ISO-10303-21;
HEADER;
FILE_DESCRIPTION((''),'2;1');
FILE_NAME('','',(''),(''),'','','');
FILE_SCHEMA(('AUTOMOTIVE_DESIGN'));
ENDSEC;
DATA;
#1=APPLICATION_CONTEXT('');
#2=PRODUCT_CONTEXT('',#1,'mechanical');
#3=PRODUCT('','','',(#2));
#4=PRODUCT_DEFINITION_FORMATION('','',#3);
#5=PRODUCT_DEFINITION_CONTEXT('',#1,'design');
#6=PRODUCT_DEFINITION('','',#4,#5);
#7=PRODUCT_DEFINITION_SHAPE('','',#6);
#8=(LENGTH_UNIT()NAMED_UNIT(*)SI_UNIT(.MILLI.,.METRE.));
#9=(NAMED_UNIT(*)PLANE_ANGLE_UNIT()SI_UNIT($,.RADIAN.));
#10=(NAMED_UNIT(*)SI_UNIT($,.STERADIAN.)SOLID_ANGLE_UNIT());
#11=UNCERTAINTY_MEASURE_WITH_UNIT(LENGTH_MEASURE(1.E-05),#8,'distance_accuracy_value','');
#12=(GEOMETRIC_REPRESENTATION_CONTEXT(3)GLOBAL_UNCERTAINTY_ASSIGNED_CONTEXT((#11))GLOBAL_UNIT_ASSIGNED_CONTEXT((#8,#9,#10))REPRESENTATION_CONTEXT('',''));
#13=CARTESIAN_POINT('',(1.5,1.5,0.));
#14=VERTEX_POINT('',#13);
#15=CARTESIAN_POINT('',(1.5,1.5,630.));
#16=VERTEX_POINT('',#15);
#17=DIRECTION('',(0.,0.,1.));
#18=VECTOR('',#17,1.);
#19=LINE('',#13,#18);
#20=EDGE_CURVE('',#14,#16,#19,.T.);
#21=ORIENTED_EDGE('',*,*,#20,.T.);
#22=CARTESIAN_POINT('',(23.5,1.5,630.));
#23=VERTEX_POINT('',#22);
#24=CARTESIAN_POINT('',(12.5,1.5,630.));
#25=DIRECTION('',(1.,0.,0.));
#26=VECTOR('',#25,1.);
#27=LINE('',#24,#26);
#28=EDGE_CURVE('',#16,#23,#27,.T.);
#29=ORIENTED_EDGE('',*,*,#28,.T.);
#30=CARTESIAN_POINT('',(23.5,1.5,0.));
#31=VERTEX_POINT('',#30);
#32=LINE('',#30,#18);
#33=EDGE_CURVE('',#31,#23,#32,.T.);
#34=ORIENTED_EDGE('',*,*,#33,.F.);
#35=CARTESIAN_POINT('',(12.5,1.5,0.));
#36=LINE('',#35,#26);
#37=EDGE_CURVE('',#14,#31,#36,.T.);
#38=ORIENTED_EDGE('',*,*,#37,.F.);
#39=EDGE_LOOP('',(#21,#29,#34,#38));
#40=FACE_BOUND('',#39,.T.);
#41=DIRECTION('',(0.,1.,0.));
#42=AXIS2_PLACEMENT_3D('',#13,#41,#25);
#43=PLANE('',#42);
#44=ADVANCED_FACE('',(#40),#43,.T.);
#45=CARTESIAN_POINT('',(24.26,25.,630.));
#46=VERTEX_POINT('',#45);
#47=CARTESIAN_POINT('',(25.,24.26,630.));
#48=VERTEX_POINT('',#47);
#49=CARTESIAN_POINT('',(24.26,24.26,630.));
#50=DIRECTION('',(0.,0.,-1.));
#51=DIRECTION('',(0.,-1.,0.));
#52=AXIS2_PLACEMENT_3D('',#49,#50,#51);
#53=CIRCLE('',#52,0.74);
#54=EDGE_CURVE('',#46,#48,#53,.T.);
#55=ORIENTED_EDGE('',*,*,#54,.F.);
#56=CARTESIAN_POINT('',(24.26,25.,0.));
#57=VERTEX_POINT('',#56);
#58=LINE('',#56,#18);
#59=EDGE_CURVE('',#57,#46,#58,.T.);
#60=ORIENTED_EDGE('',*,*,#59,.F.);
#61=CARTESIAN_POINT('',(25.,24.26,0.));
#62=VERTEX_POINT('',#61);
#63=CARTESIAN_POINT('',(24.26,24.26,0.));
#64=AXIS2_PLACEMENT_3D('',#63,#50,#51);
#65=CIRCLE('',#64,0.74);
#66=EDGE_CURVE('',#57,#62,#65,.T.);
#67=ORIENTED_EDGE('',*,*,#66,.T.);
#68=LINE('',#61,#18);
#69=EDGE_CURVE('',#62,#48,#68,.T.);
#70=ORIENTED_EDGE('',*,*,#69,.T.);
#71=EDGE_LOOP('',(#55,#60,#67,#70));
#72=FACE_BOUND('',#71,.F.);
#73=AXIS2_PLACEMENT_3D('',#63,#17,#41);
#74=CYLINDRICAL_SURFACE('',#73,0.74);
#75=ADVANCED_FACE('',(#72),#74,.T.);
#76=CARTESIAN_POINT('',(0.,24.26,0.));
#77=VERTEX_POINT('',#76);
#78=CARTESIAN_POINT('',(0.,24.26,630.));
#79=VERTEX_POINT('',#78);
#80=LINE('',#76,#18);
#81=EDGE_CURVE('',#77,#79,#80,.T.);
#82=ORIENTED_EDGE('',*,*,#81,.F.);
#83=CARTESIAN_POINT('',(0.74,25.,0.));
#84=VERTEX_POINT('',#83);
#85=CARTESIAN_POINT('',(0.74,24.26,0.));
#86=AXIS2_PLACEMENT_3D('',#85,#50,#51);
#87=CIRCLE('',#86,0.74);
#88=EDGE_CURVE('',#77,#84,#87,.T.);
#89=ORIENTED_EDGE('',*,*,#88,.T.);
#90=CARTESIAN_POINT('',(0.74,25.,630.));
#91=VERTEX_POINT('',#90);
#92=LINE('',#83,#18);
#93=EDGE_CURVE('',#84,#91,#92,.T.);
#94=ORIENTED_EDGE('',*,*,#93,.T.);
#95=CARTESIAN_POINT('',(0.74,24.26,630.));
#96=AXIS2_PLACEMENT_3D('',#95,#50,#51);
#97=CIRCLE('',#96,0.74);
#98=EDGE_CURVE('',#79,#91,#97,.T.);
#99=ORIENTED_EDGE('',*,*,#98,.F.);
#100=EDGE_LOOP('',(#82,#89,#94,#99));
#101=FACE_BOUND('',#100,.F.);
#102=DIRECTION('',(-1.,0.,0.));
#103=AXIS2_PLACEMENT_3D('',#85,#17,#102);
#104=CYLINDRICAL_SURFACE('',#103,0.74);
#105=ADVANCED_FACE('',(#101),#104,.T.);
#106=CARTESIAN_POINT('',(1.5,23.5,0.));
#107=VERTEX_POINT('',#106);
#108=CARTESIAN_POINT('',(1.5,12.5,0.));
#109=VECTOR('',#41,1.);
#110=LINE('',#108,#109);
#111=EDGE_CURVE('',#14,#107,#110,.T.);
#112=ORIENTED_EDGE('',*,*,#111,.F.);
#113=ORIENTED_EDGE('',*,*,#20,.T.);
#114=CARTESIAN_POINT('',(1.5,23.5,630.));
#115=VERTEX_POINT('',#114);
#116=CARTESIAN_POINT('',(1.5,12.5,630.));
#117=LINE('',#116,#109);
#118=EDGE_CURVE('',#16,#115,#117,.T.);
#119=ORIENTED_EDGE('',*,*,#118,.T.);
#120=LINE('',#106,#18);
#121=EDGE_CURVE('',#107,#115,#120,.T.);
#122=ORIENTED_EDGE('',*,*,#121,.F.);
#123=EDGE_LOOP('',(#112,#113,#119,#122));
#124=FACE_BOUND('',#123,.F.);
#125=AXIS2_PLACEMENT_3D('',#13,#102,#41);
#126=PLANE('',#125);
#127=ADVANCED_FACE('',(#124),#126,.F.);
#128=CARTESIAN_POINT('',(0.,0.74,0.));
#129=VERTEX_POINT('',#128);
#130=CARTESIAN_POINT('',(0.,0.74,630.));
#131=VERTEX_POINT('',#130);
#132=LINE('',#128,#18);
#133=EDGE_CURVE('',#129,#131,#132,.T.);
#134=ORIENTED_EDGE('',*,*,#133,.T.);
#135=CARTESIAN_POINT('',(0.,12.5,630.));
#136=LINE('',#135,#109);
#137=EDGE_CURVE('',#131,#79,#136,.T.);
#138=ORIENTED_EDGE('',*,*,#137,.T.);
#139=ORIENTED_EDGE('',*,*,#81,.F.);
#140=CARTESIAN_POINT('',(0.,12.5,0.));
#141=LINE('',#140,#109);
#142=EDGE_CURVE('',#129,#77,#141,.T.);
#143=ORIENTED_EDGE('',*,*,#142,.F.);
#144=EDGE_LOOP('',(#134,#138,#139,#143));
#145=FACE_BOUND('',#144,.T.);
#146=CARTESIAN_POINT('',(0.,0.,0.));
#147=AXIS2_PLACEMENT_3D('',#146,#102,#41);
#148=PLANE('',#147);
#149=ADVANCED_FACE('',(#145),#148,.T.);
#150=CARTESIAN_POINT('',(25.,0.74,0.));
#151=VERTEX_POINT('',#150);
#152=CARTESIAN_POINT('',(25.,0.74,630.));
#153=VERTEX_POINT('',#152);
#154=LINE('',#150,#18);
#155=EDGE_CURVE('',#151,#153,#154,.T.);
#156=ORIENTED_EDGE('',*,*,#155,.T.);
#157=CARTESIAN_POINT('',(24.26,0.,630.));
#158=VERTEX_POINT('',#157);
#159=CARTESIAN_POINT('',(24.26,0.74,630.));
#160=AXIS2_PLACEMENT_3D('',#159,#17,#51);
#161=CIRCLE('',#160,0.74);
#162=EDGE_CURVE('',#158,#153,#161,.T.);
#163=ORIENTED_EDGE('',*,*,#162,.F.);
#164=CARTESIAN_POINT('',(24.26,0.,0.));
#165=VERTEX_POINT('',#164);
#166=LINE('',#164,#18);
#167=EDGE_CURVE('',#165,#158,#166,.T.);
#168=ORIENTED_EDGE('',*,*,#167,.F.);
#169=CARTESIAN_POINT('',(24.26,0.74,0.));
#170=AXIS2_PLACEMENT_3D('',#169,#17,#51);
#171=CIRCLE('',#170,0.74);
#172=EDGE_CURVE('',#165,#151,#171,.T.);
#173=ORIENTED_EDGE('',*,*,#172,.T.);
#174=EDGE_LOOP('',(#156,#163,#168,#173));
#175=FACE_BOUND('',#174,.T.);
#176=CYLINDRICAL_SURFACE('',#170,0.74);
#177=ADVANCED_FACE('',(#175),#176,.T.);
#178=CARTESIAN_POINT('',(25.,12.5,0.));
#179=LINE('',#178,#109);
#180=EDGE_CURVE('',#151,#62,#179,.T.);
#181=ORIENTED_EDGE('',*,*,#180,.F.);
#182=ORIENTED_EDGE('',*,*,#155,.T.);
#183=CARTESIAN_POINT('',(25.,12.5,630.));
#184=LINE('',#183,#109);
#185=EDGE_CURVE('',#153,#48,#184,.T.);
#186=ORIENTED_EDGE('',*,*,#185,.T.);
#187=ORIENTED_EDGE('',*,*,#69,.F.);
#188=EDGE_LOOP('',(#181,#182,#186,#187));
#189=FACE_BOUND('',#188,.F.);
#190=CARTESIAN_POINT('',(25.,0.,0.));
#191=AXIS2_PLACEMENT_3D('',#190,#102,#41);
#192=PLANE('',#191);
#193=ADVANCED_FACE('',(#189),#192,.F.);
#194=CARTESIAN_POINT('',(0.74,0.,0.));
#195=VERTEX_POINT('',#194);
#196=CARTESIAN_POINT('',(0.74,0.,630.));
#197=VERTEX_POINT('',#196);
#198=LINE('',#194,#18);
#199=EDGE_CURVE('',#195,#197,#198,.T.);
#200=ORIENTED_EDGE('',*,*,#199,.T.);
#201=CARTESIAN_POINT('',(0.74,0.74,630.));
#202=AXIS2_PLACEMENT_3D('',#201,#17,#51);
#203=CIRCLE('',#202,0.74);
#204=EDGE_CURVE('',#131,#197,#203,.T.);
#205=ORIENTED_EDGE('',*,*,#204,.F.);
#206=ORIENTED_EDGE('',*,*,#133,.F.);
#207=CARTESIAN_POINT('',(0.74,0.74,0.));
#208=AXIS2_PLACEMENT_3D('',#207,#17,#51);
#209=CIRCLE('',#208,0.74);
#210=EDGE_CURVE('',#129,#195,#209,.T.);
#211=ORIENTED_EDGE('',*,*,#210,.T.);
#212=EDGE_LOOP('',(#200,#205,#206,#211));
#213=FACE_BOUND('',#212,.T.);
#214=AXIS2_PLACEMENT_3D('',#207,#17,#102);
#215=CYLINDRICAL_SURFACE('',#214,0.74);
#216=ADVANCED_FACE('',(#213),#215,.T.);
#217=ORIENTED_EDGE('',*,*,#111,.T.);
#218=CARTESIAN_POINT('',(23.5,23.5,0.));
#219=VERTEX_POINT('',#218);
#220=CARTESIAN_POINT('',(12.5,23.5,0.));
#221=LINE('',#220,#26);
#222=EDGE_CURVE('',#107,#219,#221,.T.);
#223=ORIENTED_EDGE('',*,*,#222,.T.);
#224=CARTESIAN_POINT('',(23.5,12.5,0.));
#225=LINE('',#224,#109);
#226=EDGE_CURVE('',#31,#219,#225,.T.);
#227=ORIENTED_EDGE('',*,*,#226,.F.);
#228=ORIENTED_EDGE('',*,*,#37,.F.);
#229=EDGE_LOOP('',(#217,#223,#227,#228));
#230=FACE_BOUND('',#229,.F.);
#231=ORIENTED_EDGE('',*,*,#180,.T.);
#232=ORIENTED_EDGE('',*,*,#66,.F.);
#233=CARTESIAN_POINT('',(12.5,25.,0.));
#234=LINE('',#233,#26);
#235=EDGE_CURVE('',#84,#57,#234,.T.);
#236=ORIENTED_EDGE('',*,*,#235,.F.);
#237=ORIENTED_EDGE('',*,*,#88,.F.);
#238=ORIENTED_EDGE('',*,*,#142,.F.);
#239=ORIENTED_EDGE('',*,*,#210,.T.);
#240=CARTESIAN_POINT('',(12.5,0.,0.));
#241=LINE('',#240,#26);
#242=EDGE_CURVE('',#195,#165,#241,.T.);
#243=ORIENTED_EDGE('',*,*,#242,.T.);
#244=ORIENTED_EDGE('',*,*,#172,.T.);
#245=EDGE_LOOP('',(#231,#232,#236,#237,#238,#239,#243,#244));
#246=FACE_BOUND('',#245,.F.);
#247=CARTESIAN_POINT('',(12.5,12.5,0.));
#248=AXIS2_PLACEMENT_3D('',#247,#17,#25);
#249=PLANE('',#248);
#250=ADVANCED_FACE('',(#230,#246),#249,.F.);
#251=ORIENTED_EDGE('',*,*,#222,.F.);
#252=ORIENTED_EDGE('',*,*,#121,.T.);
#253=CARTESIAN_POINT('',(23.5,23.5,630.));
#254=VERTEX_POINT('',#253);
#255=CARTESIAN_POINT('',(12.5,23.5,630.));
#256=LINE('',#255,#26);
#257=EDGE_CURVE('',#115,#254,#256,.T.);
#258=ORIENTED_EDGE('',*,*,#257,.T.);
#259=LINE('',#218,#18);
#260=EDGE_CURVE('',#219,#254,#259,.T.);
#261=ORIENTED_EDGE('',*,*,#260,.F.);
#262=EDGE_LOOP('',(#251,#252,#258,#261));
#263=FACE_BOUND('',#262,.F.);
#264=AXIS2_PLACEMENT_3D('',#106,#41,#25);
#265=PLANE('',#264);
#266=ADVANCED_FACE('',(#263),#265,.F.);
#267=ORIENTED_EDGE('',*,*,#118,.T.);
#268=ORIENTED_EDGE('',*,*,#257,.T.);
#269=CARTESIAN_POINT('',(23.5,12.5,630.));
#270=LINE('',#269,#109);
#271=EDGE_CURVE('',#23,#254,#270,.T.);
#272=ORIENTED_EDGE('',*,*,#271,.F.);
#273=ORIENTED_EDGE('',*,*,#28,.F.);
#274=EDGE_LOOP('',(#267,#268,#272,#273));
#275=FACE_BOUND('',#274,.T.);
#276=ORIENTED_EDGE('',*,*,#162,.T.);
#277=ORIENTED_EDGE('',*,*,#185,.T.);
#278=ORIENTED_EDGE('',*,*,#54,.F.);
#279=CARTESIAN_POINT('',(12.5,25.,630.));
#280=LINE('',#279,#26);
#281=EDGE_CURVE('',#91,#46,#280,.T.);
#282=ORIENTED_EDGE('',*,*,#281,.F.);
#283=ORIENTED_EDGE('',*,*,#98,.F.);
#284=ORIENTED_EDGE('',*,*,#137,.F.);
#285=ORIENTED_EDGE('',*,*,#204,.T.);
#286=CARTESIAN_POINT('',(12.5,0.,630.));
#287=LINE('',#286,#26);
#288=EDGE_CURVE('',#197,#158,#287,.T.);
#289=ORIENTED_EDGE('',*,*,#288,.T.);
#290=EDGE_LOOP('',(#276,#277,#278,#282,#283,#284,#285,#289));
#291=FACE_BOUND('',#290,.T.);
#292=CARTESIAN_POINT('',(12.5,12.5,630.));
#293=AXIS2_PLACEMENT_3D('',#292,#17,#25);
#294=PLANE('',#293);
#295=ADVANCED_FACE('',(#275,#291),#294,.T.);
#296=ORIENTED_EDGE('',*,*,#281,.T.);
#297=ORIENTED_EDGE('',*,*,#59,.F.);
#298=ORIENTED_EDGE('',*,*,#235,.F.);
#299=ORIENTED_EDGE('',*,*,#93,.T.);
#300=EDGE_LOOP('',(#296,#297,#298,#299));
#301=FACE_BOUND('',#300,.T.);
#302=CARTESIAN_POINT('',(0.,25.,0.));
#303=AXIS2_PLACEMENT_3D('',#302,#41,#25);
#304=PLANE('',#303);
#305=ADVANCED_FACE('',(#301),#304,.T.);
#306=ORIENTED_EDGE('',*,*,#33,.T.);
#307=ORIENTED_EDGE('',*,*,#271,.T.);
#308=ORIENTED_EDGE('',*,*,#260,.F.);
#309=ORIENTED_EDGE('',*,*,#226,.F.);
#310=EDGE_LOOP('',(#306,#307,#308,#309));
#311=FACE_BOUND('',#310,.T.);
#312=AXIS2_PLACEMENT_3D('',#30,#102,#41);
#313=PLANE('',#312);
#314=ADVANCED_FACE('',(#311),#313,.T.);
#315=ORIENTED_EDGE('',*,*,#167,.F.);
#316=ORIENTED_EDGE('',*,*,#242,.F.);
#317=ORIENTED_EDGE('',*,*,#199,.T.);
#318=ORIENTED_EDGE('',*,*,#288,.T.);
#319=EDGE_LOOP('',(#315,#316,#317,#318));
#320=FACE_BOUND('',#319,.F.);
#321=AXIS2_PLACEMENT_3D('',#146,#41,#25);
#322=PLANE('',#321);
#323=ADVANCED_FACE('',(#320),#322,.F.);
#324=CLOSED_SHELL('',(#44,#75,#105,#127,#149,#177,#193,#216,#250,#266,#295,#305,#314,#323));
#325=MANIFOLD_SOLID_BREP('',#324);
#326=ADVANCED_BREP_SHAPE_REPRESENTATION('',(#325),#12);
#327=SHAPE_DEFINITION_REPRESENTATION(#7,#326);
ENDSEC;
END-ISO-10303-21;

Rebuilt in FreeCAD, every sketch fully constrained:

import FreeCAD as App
import Part
import Sketcher

V = App.Vector
Q = App.Units.Quantity


def edges_at(feature, points):
    """Names of the edges that pass closest to the given points."""
    edges = feature.Shape.Edges
    near = lambda p: min(range(len(edges)), key=lambda i: edges[i].distToShape(Part.Vertex(*p))[0])
    return sorted({f"Edge{near(p) + 1}" for p in points})

doc = App.newDocument("Part")
body = doc.addObject("PartDesign::Body", "Body")

# Sketch on XY plane
sketch1 = body.newObject("Sketcher::SketchObject", "Sketch")
sketch1.AttachmentSupport = (doc.getObject("XY_Plane"), [""])
sketch1.MapMode = "FlatFace"
sketch1.addGeometry(Part.LineSegment(V(0, 25, 0), V(0, 0, 0)), False)
sketch1.addGeometry(Part.LineSegment(V(0, 0, 0), V(25, 0, 0)), False)
sketch1.addGeometry(Part.LineSegment(V(25, 0, 0), V(25, 25, 0)), False)
sketch1.addGeometry(Part.LineSegment(V(25, 25, 0), V(0, 25, 0)), False)
sketch1.addGeometry(Part.LineSegment(V(24, 2, 0), V(2, 2, 0)), False)
sketch1.addGeometry(Part.LineSegment(V(2, 2, 0), V(2, 24, 0)), False)
sketch1.addGeometry(Part.LineSegment(V(2, 24, 0), V(24, 24, 0)), False)
sketch1.addGeometry(Part.LineSegment(V(24, 24, 0), V(24, 2, 0)), False)
sketch1.addConstraint(Sketcher.Constraint("Coincident", 0, 2, 1, 1))
sketch1.addConstraint(Sketcher.Constraint("Coincident", 1, 2, 2, 1))
sketch1.addConstraint(Sketcher.Constraint("Coincident", 2, 2, 3, 1))
sketch1.addConstraint(Sketcher.Constraint("Coincident", 3, 2, 0, 1))
sketch1.addConstraint(Sketcher.Constraint("Coincident", 4, 2, 5, 1))
sketch1.addConstraint(Sketcher.Constraint("Coincident", 5, 2, 6, 1))
sketch1.addConstraint(Sketcher.Constraint("Coincident", 6, 2, 7, 1))
sketch1.addConstraint(Sketcher.Constraint("Coincident", 7, 2, 4, 1))
sketch1.addConstraint(Sketcher.Constraint("Vertical", 0))
sketch1.addConstraint(Sketcher.Constraint("Horizontal", 1))
sketch1.addConstraint(Sketcher.Constraint("Vertical", 2))
sketch1.addConstraint(Sketcher.Constraint("Horizontal", 3))
sketch1.addConstraint(Sketcher.Constraint("Horizontal", 4))
sketch1.addConstraint(Sketcher.Constraint("Vertical", 5))
sketch1.addConstraint(Sketcher.Constraint("Horizontal", 6))
sketch1.addConstraint(Sketcher.Constraint("Vertical", 7))
sketch1.addConstraint(Sketcher.Constraint("Coincident", 0, 2, -1, 1))
sketch1.addConstraint(Sketcher.Constraint("Equal", 3, 0))
sketch1.addConstraint(Sketcher.Constraint("Equal", 6, 5))
sketch1.addConstraint(Sketcher.Constraint("DistanceX", 1, 1, 1, 2, Q("25 mm")))
sketch1.addConstraint(Sketcher.Constraint("DistanceX", 4, 2, 4, 1, Q("22 mm")))
sketch1.addConstraint(Sketcher.Constraint("DistanceX", -1, 1, 4, 2, Q("1.5 mm")))
sketch1.addConstraint(Sketcher.Constraint("DistanceY", -1, 1, 4, 2, Q("1.5 mm")))
pad1 = body.newObject("PartDesign::Pad", "Pad")
pad1.Profile = sketch1
pad1.Length = 630
doc.recompute()

fillet = body.newObject("PartDesign::Fillet", "Fillet")
fillet.Base = (pad1, edges_at(pad1, [
    (25, 0, 315),
    (0, 0, 315),
    (25, 25, 315),
    (0, 25, 315),
]))
fillet.Radius = 0.74

doc.recompute()
